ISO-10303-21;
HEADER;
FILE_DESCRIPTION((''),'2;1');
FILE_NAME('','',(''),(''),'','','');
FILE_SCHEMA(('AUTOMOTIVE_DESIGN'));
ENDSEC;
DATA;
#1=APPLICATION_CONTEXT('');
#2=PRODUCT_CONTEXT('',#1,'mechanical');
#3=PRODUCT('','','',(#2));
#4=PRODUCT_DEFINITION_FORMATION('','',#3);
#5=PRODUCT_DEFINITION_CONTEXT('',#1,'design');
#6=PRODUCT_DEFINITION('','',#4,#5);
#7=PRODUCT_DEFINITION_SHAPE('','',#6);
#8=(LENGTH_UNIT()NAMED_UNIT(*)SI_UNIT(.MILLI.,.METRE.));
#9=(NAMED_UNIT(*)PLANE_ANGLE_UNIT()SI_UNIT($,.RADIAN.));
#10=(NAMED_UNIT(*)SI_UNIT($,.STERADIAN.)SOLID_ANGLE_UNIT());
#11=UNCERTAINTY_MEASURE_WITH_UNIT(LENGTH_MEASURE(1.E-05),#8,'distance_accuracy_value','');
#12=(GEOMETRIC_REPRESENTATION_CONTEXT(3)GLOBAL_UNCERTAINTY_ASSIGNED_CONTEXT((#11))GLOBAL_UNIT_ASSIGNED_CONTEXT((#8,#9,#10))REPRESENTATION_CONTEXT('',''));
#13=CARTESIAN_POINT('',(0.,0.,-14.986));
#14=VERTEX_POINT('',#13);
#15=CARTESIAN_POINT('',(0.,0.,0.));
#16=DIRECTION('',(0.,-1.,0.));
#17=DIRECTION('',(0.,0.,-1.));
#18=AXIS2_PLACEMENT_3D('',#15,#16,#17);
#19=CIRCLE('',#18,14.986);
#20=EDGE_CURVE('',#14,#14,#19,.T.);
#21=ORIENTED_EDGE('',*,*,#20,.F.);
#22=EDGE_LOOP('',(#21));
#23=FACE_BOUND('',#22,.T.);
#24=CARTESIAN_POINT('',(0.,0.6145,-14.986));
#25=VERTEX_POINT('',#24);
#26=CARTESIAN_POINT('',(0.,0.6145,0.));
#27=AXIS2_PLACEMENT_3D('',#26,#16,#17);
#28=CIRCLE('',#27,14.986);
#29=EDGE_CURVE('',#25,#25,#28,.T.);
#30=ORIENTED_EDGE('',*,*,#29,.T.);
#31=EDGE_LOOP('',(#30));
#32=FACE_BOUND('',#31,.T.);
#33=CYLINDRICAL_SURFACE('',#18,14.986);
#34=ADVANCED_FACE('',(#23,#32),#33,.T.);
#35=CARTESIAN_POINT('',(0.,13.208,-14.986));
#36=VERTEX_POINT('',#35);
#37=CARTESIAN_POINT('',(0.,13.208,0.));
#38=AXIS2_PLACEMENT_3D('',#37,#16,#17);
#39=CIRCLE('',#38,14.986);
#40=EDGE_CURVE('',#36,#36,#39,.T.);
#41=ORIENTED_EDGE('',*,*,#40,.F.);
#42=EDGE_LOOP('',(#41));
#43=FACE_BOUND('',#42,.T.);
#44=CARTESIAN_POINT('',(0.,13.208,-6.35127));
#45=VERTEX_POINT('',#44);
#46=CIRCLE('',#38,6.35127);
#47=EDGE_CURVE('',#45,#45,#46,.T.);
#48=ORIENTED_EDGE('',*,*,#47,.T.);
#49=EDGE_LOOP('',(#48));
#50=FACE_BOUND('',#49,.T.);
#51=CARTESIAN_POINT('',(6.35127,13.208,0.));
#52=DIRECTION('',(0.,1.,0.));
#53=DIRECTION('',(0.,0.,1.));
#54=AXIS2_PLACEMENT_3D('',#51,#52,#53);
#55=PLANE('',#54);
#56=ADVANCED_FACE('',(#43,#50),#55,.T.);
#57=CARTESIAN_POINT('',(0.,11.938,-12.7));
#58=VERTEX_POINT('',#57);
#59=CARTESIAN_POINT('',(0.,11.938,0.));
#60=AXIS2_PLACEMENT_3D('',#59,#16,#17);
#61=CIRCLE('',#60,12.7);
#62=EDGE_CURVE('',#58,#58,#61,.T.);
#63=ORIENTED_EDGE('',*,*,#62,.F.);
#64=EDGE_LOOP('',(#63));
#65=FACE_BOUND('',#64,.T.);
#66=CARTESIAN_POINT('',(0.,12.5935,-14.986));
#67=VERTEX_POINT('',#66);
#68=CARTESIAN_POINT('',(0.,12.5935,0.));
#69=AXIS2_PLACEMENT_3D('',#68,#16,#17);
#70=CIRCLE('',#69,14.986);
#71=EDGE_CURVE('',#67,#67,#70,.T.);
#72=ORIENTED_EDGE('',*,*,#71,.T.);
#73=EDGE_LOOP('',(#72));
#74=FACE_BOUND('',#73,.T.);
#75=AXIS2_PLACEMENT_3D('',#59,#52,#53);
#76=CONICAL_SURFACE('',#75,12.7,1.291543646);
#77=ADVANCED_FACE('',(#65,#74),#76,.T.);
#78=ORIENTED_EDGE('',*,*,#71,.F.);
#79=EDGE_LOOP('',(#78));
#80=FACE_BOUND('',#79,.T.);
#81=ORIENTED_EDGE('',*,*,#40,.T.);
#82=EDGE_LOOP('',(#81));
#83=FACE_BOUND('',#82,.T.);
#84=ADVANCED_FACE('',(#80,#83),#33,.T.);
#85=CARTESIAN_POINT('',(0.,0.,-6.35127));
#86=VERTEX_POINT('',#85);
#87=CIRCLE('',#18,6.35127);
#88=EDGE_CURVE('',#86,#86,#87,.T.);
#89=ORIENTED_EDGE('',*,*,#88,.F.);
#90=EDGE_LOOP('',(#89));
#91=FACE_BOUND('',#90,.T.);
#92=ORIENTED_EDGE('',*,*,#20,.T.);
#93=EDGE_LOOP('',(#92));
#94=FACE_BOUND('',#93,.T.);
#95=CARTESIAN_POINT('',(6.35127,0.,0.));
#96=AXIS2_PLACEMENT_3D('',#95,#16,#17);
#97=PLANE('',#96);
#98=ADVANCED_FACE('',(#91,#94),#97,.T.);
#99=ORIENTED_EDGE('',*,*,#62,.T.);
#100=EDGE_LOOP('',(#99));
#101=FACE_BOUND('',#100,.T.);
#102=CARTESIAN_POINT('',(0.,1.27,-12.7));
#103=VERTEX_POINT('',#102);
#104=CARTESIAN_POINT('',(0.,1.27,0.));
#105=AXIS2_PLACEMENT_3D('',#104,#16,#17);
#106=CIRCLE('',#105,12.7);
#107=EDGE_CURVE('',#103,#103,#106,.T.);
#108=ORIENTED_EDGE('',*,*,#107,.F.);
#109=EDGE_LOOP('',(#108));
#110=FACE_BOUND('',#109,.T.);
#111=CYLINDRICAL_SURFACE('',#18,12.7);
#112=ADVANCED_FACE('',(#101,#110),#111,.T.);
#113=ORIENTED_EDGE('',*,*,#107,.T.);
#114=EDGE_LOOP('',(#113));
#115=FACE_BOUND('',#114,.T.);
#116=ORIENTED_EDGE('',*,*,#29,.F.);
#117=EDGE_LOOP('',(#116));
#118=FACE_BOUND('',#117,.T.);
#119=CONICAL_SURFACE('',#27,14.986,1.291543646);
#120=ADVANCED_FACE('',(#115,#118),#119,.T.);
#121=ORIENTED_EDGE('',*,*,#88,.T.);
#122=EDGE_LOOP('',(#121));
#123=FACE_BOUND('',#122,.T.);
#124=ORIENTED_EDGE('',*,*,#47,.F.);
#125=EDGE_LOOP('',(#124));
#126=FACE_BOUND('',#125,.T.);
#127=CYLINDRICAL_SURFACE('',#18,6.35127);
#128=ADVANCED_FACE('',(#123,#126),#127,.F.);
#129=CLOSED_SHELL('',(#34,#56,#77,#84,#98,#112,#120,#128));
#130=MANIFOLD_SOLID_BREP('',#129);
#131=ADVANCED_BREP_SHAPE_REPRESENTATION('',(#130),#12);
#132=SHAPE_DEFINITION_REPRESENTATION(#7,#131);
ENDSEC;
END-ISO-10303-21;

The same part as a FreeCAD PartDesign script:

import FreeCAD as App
import Part
import Sketcher
Q = App.Units.Quantity


def add_polygon(sketch, points):
    """Adds a closed chain of lines whose ends are joined by coincident constraints."""
    first, n = sketch.GeometryCount, len(points)
    for a, b in zip(points, points[1:] + points[:1]):
        sketch.addGeometry(Part.LineSegment(App.Vector(*a, 0), App.Vector(*b, 0)), False)
    for i in range(n):
        sketch.addConstraint(Sketcher.Constraint("Coincident", first + i, 2, first + (i + 1) % n, 1))

doc = App.newDocument("Part")
body = doc.addObject("PartDesign::Body", "Body")

sketch1 = body.newObject("Sketcher::SketchObject", "Sketch")
sketch1.AttachmentSupport = (doc.getObject("XY_Plane"), [""])
sketch1.MapMode = "FlatFace"
add_polygon(sketch1, [(6.4, 13.2), (6.4, 0), (15, 0), (15, 0.6), (12.7, 1.3), (12.7, 11.9), (15, 12.6), (15, 13.2)])
sketch1.addConstraint([
    Sketcher.Constraint("Vertical", 0),
    Sketcher.Constraint("Horizontal", 1),
    Sketcher.Constraint("Vertical", 2),
    Sketcher.Constraint("Vertical", 4),
    Sketcher.Constraint("Vertical", 6),
    Sketcher.Constraint("Horizontal", 7),
    Sketcher.Constraint("PointOnObject", 0, 2, -1),
    Sketcher.Constraint("Vertical", 2, 2, 5, 2),
    Sketcher.Constraint("Equal", 2, 6),
    Sketcher.Constraint("Equal", 3, 5),
    Sketcher.Constraint("Angle", 3, Q("164 deg")),
    Sketcher.Constraint("DistanceY", 0, 2, 0, 1, Q("0.52 in")),
    Sketcher.Constraint("DistanceY", 4, 1, 4, 2, Q("0.42 in")),
    Sketcher.Constraint("DistanceX", -1, 1, 3, 2, Q("0.5 in")),
    Sketcher.Constraint("DistanceX", -1, 1, 1, 2, Q("0.59 in")),
    Sketcher.Constraint("DistanceX", 1, 1, 1, 2, Q("8.63473 mm")),
])
revolution = body.newObject("PartDesign::Revolution", "Revolution")
revolution.Profile = sketch1
revolution.ReferenceAxis = (sketch1, ["V_Axis"])
revolution.Angle = 360

doc.recompute()
